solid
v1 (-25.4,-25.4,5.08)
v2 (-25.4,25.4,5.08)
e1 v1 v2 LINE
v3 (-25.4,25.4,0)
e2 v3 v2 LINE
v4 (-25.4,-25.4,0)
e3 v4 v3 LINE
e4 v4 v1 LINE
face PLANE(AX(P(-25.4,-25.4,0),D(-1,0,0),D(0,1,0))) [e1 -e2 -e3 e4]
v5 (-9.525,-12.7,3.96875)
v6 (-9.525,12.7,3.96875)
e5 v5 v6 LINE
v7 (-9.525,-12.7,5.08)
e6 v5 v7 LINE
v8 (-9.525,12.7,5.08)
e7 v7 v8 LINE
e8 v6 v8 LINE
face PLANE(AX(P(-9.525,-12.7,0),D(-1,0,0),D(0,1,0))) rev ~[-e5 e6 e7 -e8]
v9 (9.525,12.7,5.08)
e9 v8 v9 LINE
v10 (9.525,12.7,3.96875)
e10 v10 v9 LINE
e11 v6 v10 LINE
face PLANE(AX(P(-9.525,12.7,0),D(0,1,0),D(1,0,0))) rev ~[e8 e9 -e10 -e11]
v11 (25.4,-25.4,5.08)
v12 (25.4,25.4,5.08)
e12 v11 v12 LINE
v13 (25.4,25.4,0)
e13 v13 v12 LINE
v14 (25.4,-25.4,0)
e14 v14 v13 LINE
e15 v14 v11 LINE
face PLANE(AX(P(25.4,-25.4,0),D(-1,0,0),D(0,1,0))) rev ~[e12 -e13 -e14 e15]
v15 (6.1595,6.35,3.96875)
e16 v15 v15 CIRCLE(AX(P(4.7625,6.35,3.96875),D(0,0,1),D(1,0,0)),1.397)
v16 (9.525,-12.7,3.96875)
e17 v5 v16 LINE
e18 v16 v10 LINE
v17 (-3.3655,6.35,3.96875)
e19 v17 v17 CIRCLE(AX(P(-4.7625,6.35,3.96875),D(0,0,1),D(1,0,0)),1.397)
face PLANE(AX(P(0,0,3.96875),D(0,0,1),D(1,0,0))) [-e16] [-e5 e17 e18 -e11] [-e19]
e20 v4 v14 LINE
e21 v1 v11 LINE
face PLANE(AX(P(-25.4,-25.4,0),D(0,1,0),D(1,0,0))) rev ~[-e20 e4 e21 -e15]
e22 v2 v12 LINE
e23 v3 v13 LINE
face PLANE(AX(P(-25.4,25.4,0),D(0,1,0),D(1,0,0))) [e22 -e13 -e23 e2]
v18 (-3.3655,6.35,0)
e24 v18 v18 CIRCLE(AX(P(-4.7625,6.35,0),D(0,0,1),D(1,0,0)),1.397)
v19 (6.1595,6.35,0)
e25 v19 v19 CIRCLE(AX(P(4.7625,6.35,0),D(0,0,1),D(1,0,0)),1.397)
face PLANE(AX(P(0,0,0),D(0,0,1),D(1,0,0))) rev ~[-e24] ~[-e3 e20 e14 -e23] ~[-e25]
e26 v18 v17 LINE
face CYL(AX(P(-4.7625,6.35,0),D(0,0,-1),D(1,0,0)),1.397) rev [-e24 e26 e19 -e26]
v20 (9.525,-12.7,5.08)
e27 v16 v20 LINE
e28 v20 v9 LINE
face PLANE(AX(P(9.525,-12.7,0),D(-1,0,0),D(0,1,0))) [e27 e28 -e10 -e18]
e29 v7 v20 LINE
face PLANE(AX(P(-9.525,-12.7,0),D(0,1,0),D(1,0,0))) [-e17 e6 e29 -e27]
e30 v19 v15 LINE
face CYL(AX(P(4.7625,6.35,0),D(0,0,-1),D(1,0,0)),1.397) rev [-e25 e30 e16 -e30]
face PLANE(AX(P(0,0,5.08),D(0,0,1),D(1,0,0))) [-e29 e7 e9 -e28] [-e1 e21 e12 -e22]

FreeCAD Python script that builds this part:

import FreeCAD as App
import Part
import Sketcher
from FreeCAD import Vector
Q = App.Units.Quantity

doc = App.newDocument("Part")
body = doc.addObject("PartDesign::Body", "Body")

# Sketch on XY plane
sketch1 = body.newObject("Sketcher::SketchObject", "Sketch")
sketch1.AttachmentSupport = (doc.getObject("XY_Plane"), [""])
sketch1.MapMode = "FlatFace"
sketch1.addGeometry([
    Part.LineSegment(Vector(-25, 25, 0), Vector(-25, -25, 0)),  # 0
    Part.LineSegment(Vector(-25, -25, 0), Vector(25, -25, 0)),  # 1
    Part.LineSegment(Vector(25, -25, 0), Vector(25, 25, 0)),  # 2
    Part.LineSegment(Vector(25, 25, 0), Vector(-25, 25, 0)),  # 3
    Part.LineSegment(Vector(10, -13, 0), Vector(-10, -13, 0)),  # 4
    Part.LineSegment(Vector(-10, -13, 0), Vector(-10, 13, 0)),  # 5
    Part.LineSegment(Vector(-10, 13, 0), Vector(10, 13, 0)),  # 6
    Part.LineSegment(Vector(10, 13, 0), Vector(10, -13, 0)),  # 7
], False)
sketch1.addConstraint([
    Sketcher.Constraint("Coincident", 0, 2, 1, 1),
    Sketcher.Constraint("Coincident", 1, 2, 2, 1),
    Sketcher.Constraint("Coincident", 2, 2, 3, 1),
    Sketcher.Constraint("Coincident", 3, 2, 0, 1),
    Sketcher.Constraint("Coincident", 4, 2, 5, 1),
    Sketcher.Constraint("Coincident", 5, 2, 6, 1),
    Sketcher.Constraint("Coincident", 6, 2, 7, 1),
    Sketcher.Constraint("Coincident", 7, 2, 4, 1),
    Sketcher.Constraint("Vertical", 0),
    Sketcher.Constraint("Horizontal", 1),
    Sketcher.Constraint("Vertical", 2),
    Sketcher.Constraint("Horizontal", 3),
    Sketcher.Constraint("Horizontal", 4),
    Sketcher.Constraint("Vertical", 5),
    Sketcher.Constraint("Horizontal", 6),
    Sketcher.Constraint("Vertical", 7),
    Sketcher.Constraint("Symmetric", 0, 2, 2, 2, -1, 1),
    Sketcher.Constraint("Symmetric", 4, 2, 6, 2, -1, 1),
    Sketcher.Constraint("Equal", 3, 0),
    Sketcher.Constraint("DistanceX", 1, 1, 1, 2, Q("2 in")),
    Sketcher.Constraint("DistanceY", 5, 1, 5, 2, Q("1 in")),
    Sketcher.Constraint("DistanceX", 4, 2, 4, 1, Q("0.75 in")),
])
pad1 = body.newObject("PartDesign::Pad", "Pad")
pad1.Profile = sketch1
pad1.Length = Q("0.2 in")

# Sketch on XY plane
sketch2 = body.newObject("Sketcher::SketchObject", "Sketch001")
sketch2.AttachmentSupport = (doc.getObject("XY_Plane"), [""])
sketch2.MapMode = "FlatFace"
sketch2.addGeometry([
    Part.LineSegment(Vector(-9.5, 12.7, 0), Vector(-9.5, -12.7, 0)),  # 0
    Part.LineSegment(Vector(-9.5, -12.7, 0), Vector(9.5, -12.7, 0)),  # 1
    Part.LineSegment(Vector(9.5, -12.7, 0), Vector(9.5, 12.7, 0)),  # 2
    Part.LineSegment(Vector(9.5, 12.7, 0), Vector(-9.5, 12.7, 0)),  # 3
    Part.Circle(Vector(-4.8, 6.3, 0), Vector(0, 0, 1), 1.4),  # 4
    Part.Circle(Vector(4.8, 6.3, 0), Vector(0, 0, 1), 1.4),  # 5
], False)
sketch2.addConstraint([
    Sketcher.Constraint("Coincident", 0, 2, 1, 1),
    Sketcher.Constraint("Coincident", 1, 2, 2, 1),
    Sketcher.Constraint("Coincident", 2, 2, 3, 1),
    Sketcher.Constraint("Coincident", 3, 2, 0, 1),
    Sketcher.Constraint("Vertical", 0),
    Sketcher.Constraint("Horizontal", 1),
    Sketcher.Constraint("Vertical", 2),
    Sketcher.Constraint("Horizontal", 3),
    Sketcher.Constraint("Equal", 4, 5),
    Sketcher.Constraint("Symmetric", 0, 2, 2, 2, -1, 1),
    Sketcher.Constraint("Symmetric", 4, 3, 5, 3, -2),
    Sketcher.Constraint("Diameter", 4, Q("0.11 in")),
    Sketcher.Constraint("DistanceY", 0, 2, 0, 1, Q("1 in")),
    Sketcher.Constraint("DistanceX", 1, 1, 1, 2, Q("0.75 in")),
    Sketcher.Constraint("DistanceY", -1, 1, 4, 3, Q("0.25 in")),
    Sketcher.Constraint("DistanceX", 4, 3, -1, 1, Q("0.1875 in")),
])
pad2 = body.newObject("PartDesign::Pad", "Pad001")
pad2.Profile = sketch2
pad2.Length = Q("0.15625 in")

doc.recompute()
